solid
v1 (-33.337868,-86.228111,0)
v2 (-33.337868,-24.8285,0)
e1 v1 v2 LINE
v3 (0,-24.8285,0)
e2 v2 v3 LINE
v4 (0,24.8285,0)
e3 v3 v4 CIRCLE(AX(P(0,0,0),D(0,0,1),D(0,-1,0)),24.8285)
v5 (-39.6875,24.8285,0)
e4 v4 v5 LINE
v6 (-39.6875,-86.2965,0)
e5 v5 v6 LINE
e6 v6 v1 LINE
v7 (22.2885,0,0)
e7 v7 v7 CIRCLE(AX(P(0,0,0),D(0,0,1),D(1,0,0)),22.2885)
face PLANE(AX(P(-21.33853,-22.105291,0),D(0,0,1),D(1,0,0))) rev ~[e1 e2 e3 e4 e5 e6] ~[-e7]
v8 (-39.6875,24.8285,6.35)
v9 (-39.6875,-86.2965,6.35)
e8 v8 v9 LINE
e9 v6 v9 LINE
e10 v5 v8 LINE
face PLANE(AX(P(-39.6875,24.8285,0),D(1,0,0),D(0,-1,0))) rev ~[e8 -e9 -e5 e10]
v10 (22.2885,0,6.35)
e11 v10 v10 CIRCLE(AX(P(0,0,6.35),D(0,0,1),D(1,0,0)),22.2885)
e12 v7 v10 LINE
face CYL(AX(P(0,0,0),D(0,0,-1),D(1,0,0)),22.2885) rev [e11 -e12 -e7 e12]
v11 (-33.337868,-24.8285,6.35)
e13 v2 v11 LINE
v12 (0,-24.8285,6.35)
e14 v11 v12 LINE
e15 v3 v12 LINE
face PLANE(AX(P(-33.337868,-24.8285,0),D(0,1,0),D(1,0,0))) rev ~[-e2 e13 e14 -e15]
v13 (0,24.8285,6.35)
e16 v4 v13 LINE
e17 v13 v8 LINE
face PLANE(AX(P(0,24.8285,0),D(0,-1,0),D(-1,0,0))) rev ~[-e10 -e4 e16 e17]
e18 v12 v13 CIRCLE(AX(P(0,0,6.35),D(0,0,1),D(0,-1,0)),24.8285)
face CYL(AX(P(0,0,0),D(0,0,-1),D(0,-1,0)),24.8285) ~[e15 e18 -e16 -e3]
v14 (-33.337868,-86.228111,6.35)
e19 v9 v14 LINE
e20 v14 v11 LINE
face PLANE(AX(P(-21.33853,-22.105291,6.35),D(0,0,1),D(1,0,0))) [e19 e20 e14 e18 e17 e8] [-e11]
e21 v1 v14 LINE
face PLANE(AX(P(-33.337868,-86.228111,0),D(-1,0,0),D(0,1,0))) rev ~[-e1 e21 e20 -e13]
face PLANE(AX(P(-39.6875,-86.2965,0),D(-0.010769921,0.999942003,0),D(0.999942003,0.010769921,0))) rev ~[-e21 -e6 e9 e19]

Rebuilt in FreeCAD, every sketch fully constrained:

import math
import FreeCAD as App
import Part
import Sketcher
Q = App.Units.Quantity

doc = App.newDocument("Part")
params = doc.addObject("Spreadsheet::Sheet", "Params")
for row, (alias, value) in enumerate([
    ("sketch1_diameter", "1.755 in"),
    ("sketch1_length", "0.25 in"),
    ("sketch1_width", "1.5625 in"),
    ("sketch1_height", "4.375 in"),
    ("pad1_length", "0.25 in"),
], start=1):
    params.set(f"A{row}", alias)
    params.set(f"B{row}", "=" + value)
    params.setAlias(f"B{row}", alias)

body = doc.addObject("PartDesign::Body", "Body")

# Sketch on XY plane
sketch1 = body.newObject("Sketcher::SketchObject", "Sketch")
sketch1.AttachmentSupport = (doc.getObject("XY_Plane"), [""])
sketch1.MapMode = "FlatFace"
sketch1.addGeometry(Part.LineSegment(App.Vector(-33, -25, 0), App.Vector(0, -25, 0)), False)
sketch1.addGeometry(Part.ArcOfCircle(Part.Circle(App.Vector(0, 0, 0), App.Vector(0, 0, 1), 25), math.radians(-90), math.radians(90)), False)
sketch1.addGeometry(Part.LineSegment(App.Vector(0, 25, 0), App.Vector(-40, 25, 0)), False)
sketch1.addGeometry(Part.LineSegment(App.Vector(-40, 25, 0), App.Vector(-40, -86, 0)), False)
sketch1.addGeometry(Part.LineSegment(App.Vector(-40, -86, 0), App.Vector(-33, -86, 0)), False)
sketch1.addGeometry(Part.LineSegment(App.Vector(-33, -86, 0), App.Vector(-33, -25, 0)), False)
sketch1.addGeometry(Part.Circle(App.Vector(0, 0, 0), App.Vector(0, 0, 1), 22), False)
sketch1.addConstraint(Sketcher.Constraint("Tangent", 0, 2, 1, 1))
sketch1.addConstraint(Sketcher.Constraint("Tangent", 1, 2, 2, 1))
sketch1.addConstraint(Sketcher.Constraint("Coincident", 2, 2, 3, 1))
sketch1.addConstraint(Sketcher.Constraint("Coincident", 3, 2, 4, 1))
sketch1.addConstraint(Sketcher.Constraint("Coincident", 4, 2, 5, 1))
sketch1.addConstraint(Sketcher.Constraint("Coincident", 5, 2, 0, 1))
sketch1.addConstraint(Sketcher.Constraint("Horizontal", 0))
sketch1.addConstraint(Sketcher.Constraint("Horizontal", 2))
sketch1.addConstraint(Sketcher.Constraint("Vertical", 3))
sketch1.addConstraint(Sketcher.Constraint("Vertical", 5))
sketch1.addConstraint(Sketcher.Constraint("Coincident", 1, 3, -1, 1))
sketch1.addConstraint(Sketcher.Constraint("Coincident", 6, 3, -1, 1))
sketch1.addConstraint(Sketcher.Constraint("Diameter", 6, Q("1.755 in")))
sketch1.addConstraint(Sketcher.Constraint("Radius", 1, Q("0.9775 in")))
sketch1.addConstraint(Sketcher.Constraint("Distance", 4, Q("0.25 in")))
sketch1.addConstraint(Sketcher.Constraint("DistanceX", 2, 2, 2, 1, Q("1.5625 in")))
sketch1.addConstraint(Sketcher.Constraint("DistanceY", 3, 2, 3, 1, Q("4.375 in")))
sketch1.addConstraint(Sketcher.Constraint("DistanceY", 5, 1, 5, 2, Q("61.399611 mm")))
sketch1.setExpression("Constraints[12]", "Params.sketch1_diameter")
sketch1.setExpression("Constraints[14]", "Params.sketch1_length")
sketch1.setExpression("Constraints[15]", "Params.sketch1_width")
sketch1.setExpression("Constraints[16]", "Params.sketch1_height")
pad1 = body.newObject("PartDesign::Pad", "Pad")
pad1.Profile = sketch1
pad1.setExpression("Length", "Params.pad1_length")

doc.recompute()
